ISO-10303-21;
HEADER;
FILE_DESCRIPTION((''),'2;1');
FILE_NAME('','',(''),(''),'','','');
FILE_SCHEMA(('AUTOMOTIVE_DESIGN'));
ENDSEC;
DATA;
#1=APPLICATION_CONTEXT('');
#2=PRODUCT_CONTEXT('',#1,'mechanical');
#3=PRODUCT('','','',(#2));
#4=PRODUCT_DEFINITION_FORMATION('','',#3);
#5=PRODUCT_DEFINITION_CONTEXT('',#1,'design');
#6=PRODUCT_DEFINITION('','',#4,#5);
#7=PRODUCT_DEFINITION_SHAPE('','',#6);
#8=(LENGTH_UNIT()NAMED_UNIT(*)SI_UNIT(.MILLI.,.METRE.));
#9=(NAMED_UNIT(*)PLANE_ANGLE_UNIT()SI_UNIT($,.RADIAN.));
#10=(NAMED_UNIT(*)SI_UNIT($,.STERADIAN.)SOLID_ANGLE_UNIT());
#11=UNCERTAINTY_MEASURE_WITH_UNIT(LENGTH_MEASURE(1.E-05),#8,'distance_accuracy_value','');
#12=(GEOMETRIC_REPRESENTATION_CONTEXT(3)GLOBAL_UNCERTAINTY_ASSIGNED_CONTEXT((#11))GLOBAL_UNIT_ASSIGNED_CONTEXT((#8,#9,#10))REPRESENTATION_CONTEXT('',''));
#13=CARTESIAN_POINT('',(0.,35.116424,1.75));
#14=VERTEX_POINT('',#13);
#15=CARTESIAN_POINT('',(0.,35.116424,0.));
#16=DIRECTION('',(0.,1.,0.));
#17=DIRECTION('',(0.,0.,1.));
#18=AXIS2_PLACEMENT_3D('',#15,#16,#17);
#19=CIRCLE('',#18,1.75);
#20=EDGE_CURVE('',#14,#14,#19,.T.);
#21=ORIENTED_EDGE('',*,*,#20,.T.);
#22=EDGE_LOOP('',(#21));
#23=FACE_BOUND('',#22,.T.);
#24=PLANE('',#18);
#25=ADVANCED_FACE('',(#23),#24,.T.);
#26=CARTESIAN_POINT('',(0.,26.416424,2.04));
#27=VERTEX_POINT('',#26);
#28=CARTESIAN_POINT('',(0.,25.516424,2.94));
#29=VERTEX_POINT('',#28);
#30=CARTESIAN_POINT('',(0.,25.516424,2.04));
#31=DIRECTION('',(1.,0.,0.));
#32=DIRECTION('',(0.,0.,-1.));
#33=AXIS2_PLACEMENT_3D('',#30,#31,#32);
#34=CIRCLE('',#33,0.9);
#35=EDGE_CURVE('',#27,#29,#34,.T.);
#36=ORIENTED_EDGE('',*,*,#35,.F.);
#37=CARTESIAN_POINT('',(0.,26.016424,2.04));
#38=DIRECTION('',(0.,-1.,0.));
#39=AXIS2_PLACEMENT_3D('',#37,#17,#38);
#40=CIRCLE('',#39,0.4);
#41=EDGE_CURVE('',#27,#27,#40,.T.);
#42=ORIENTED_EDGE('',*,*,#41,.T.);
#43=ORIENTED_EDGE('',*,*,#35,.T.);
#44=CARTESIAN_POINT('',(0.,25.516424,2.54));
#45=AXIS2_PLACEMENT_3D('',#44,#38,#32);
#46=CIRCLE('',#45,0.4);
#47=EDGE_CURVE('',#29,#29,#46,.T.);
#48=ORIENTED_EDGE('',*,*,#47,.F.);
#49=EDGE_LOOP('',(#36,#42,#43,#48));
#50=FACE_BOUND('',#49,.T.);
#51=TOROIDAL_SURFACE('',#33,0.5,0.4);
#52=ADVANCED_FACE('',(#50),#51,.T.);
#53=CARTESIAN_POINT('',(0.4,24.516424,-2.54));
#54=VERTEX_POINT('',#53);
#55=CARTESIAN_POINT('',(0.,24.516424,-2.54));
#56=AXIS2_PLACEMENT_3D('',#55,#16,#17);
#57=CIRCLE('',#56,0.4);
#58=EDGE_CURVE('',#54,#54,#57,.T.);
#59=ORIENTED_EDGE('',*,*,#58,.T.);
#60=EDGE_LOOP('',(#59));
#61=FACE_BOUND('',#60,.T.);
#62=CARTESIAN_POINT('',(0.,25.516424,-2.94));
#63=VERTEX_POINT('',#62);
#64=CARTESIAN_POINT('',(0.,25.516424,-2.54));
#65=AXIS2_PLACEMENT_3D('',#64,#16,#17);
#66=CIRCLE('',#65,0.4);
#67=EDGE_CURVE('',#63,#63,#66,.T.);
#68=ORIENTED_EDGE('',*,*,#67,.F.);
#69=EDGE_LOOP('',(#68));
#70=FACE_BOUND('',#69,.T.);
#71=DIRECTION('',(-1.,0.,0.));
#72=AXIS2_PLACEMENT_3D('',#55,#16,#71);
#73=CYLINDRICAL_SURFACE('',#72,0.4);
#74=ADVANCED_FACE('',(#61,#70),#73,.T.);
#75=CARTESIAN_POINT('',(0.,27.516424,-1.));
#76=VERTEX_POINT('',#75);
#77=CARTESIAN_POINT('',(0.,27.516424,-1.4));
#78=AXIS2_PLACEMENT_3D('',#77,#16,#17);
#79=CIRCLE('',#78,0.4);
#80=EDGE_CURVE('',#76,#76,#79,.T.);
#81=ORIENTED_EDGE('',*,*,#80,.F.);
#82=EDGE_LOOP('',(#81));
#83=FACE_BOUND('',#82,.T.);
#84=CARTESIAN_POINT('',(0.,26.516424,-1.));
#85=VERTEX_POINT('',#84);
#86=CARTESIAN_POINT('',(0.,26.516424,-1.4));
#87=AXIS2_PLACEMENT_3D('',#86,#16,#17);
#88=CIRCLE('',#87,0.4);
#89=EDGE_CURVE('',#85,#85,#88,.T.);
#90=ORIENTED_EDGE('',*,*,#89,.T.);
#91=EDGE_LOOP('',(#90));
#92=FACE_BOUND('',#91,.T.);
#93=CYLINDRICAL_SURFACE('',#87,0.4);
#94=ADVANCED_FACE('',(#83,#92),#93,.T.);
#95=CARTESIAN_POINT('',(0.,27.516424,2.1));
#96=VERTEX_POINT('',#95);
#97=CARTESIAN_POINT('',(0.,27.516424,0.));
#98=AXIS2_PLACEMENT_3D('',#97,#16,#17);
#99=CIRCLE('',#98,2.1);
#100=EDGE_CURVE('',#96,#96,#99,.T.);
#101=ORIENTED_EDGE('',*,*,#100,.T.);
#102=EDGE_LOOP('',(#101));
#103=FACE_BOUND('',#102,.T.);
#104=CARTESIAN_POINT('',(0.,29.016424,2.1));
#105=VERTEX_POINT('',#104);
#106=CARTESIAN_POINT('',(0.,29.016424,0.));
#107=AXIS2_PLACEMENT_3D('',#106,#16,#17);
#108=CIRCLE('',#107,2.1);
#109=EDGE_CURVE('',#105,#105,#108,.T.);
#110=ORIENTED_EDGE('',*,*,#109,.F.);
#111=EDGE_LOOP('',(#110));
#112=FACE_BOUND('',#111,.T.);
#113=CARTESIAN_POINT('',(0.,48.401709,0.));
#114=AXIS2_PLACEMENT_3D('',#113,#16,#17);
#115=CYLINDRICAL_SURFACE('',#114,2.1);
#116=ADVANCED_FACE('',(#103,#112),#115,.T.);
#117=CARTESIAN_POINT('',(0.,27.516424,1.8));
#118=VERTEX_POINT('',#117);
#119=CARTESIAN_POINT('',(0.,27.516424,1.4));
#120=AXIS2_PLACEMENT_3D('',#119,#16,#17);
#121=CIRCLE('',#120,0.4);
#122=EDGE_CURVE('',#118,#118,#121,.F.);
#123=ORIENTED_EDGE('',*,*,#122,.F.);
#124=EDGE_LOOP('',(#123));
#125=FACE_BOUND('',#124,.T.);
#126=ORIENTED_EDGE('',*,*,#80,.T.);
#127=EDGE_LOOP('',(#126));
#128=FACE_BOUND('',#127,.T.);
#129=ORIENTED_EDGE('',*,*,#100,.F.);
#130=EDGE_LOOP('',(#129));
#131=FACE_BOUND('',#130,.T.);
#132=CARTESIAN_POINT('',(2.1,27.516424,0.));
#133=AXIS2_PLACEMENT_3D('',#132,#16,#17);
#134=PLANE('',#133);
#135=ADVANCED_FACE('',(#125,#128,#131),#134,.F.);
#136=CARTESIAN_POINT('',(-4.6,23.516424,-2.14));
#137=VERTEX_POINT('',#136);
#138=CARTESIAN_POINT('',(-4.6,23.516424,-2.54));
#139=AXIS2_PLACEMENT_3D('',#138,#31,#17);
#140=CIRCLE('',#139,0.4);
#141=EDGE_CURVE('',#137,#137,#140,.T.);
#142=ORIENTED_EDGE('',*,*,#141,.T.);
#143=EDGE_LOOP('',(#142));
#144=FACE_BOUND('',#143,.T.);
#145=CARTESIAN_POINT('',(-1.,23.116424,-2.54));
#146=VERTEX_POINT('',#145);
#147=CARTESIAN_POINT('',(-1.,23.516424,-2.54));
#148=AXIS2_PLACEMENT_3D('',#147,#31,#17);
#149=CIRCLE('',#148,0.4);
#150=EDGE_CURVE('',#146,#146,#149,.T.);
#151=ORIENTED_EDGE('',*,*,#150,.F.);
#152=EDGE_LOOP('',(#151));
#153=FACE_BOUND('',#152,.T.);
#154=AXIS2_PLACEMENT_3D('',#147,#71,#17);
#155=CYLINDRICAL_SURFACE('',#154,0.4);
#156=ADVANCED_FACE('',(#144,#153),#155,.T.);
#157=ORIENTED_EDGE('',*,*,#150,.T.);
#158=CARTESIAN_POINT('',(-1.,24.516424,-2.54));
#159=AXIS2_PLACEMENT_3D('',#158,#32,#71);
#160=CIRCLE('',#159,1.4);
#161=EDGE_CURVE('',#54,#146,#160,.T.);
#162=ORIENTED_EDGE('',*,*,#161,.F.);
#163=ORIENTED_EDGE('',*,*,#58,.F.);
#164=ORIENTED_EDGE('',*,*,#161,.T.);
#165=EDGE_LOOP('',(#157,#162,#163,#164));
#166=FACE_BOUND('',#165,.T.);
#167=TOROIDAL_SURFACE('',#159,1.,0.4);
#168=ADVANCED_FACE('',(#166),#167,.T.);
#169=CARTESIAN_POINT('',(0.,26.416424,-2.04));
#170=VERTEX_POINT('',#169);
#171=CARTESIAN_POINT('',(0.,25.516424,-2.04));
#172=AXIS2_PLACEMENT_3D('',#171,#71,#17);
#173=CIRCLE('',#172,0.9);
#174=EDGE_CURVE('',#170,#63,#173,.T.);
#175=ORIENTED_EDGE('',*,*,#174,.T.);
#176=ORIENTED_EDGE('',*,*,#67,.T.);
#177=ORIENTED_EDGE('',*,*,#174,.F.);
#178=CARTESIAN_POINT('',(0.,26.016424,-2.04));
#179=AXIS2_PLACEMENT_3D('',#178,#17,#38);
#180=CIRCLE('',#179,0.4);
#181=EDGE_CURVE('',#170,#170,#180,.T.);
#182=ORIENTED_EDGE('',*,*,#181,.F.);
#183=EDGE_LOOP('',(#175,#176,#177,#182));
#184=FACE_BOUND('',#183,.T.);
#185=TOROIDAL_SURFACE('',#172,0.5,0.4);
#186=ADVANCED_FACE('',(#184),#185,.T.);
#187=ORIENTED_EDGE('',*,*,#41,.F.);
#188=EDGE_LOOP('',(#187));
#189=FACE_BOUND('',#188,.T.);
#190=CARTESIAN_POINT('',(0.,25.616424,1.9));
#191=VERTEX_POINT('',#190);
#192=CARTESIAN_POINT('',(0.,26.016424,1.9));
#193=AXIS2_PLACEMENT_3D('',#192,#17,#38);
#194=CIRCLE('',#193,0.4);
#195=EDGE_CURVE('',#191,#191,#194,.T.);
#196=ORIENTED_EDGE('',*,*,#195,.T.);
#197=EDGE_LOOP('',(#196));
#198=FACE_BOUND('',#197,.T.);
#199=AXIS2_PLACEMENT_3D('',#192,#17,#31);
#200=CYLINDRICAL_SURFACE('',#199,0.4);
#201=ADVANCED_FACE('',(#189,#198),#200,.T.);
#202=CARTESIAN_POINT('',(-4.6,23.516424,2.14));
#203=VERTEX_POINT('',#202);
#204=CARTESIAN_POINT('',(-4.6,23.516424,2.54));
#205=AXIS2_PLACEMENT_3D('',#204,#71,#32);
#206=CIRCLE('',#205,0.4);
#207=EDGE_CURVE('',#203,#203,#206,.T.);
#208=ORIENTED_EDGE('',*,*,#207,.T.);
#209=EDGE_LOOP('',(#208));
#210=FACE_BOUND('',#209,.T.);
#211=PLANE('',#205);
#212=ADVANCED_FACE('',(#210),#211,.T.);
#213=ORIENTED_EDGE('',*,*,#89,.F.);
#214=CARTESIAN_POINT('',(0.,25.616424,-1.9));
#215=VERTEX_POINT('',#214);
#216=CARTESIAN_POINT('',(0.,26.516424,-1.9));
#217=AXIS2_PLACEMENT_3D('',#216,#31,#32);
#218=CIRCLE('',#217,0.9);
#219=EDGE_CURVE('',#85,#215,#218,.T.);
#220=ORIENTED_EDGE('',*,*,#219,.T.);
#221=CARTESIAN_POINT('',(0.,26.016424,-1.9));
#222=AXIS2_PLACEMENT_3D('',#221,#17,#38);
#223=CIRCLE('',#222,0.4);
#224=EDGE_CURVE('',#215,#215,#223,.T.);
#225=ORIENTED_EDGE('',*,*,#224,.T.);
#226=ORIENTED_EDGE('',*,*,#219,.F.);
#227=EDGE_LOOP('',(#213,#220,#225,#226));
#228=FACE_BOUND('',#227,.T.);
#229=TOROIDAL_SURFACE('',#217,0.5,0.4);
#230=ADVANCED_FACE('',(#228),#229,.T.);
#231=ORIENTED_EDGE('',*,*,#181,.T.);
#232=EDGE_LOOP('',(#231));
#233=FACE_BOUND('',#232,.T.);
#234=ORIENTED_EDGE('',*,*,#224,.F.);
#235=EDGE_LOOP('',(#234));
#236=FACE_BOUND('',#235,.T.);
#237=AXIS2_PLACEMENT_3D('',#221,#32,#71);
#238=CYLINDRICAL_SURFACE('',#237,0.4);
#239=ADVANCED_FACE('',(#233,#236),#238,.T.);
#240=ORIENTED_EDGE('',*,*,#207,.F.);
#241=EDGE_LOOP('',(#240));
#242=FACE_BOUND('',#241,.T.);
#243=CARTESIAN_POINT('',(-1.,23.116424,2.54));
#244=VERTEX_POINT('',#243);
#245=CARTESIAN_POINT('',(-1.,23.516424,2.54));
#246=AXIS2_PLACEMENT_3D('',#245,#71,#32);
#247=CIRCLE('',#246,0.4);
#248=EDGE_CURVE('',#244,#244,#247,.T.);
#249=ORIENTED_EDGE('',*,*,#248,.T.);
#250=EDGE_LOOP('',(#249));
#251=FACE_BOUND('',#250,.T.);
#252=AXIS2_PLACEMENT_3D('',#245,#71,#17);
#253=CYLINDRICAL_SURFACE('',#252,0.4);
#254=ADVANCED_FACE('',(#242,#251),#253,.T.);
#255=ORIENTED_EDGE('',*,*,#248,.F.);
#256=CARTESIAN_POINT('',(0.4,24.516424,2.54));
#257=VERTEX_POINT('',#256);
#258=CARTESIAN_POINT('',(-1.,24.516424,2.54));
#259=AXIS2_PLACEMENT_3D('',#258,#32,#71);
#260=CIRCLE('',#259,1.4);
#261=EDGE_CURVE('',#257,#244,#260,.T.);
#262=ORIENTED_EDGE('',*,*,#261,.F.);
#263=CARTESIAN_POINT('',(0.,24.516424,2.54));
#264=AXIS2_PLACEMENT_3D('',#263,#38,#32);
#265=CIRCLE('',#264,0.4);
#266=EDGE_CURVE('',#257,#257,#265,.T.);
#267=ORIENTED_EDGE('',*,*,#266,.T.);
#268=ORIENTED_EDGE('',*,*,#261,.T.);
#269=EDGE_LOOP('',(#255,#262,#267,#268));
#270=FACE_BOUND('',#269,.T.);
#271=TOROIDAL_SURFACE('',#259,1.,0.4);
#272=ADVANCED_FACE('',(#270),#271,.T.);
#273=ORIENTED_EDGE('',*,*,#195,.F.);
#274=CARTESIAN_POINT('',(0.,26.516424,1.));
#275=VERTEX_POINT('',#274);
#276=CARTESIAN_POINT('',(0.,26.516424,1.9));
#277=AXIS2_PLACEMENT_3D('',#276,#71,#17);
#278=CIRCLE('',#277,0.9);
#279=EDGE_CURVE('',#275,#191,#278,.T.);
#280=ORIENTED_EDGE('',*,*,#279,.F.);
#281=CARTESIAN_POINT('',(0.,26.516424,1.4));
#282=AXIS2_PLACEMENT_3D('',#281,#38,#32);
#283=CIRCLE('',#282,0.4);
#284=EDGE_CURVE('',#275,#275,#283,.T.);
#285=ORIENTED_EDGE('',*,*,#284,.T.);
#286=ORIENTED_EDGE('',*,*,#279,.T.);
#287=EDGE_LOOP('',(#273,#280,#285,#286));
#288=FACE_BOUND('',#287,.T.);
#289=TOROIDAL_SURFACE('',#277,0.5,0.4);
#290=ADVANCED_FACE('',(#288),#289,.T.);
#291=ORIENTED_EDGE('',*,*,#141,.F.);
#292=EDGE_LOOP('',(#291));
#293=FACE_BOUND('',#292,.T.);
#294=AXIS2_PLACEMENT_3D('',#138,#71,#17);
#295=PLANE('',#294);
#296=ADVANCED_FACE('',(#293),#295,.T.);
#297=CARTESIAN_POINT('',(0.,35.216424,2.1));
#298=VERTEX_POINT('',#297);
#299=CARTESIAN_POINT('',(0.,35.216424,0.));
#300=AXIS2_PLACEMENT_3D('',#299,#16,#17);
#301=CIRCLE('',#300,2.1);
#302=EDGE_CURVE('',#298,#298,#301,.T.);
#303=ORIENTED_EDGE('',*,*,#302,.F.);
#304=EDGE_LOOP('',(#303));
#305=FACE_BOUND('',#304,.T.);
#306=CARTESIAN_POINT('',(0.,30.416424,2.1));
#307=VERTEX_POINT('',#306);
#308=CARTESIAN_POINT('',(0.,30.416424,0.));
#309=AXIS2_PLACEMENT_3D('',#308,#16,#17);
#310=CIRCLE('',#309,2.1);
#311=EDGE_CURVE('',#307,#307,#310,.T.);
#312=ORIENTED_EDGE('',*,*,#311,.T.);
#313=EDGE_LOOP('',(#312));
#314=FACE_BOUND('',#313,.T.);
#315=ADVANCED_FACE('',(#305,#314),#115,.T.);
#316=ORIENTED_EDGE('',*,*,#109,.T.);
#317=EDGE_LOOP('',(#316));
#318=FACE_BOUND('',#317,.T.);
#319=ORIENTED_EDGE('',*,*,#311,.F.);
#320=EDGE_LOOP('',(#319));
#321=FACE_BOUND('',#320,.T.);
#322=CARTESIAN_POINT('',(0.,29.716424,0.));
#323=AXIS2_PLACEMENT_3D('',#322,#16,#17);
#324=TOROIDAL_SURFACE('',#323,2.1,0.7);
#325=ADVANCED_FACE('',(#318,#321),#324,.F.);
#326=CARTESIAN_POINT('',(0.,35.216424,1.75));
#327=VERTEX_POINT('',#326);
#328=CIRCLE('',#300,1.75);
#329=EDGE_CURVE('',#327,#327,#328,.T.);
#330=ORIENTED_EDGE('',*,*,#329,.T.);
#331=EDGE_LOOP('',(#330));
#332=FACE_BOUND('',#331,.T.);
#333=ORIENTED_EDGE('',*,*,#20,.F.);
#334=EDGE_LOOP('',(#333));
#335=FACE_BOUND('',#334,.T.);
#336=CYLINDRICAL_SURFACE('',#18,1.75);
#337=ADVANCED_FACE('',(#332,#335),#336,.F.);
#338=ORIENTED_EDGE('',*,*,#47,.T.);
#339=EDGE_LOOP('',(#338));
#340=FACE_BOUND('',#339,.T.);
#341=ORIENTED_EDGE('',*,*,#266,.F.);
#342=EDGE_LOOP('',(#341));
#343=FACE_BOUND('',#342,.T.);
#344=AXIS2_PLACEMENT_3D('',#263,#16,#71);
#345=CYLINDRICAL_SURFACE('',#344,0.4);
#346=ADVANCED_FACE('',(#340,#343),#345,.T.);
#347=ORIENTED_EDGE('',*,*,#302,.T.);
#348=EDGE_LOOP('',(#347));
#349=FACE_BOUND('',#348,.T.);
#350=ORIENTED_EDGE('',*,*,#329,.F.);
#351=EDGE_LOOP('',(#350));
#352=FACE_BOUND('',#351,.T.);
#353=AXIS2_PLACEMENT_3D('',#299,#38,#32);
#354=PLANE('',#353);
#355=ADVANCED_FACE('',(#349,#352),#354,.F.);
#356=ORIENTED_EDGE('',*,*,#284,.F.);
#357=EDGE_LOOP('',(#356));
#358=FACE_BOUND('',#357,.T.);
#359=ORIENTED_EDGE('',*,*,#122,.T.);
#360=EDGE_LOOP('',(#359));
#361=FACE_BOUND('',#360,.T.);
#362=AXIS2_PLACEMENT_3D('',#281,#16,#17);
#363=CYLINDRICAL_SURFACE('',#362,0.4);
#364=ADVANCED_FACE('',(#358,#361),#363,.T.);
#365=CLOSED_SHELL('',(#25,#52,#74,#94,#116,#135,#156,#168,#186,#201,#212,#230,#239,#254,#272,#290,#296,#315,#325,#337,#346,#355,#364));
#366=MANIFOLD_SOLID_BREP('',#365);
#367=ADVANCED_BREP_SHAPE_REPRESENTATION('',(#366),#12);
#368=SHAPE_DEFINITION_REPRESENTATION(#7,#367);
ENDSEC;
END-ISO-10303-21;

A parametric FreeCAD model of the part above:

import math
import FreeCAD as App
import Part
import Sketcher

V = App.Vector
Q = App.Units.Quantity

doc = App.newDocument("Part")
params = doc.addObject("Spreadsheet::Sheet", "Params")
for row, (alias, value) in enumerate([
    ("sketch1_radius", "0.7 mm"),
    ("sketch1_width", "2.1 mm"),
    ("sketch1_height", "7.7 mm"),
    ("sketch1_height2", "1.5 mm"),
    ("revolution_angle", "360 deg"),
    ("sketch2_diameter", "3.5 mm"),
    ("pocket1_length", "0.1 mm"),
    ("sketch3_diameter", "0.8 mm"),
    ("sketch4_radius", "0.5 mm"),
    ("sketch4_width", "1 mm"),
    ("sketch4_height", "0.14 mm"),
    ("sketch5_diameter", "0.8 mm"),
    ("sketch6_radius", "1 mm"),
    ("sketch6_height", "1 mm"),
    ("sketch6_width", "3.6 mm"),
], start=1):
    params.set(f"A{row}", alias)
    params.set(f"B{row}", "=" + value)
    params.setAlias(f"B{row}", alias)

body = doc.addObject("PartDesign::Body", "Body")

# Sketch on XY plane
sketch1 = body.newObject("Sketcher::SketchObject", "Sketch")
sketch1.AttachmentSupport = (doc.getObject("XY_Plane"), [""])
sketch1.MapMode = "FlatFace"
sketch1.addGeometry([
    Part.LineSegment(V(2.1, 35.2, 0), V(0, 35.2, 0)),  # 0
    Part.LineSegment(V(0, 35.2, 0), V(0, 27.5, 0)),  # 1
    Part.LineSegment(V(0, 27.5, 0), V(2.1, 27.5, 0)),  # 2
    Part.LineSegment(V(2.1, 27.5, 0), V(2.1, 29, 0)),  # 3
    Part.ArcOfCircle(Part.Circle(V(2.1, 29.7, 0), V(0, 0, 1), 0.7), math.radians(90), math.radians(270)),  # 4
    Part.LineSegment(V(2.1, 30.4, 0), V(2.1, 35.2, 0)),  # 5
], False)
sketch1.addConstraint([
    Sketcher.Constraint("Coincident", 0, 2, 1, 1),
    Sketcher.Constraint("Coincident", 1, 2, 2, 1),
    Sketcher.Constraint("Coincident", 2, 2, 3, 1),
    Sketcher.Constraint("Coincident", 3, 2, 4, 2),
    Sketcher.Constraint("Coincident", 4, 1, 5, 1),
    Sketcher.Constraint("Coincident", 5, 2, 0, 1),
    Sketcher.Constraint("Horizontal", 0),
    Sketcher.Constraint("Vertical", 1),
    Sketcher.Constraint("Horizontal", 2),
    Sketcher.Constraint("Vertical", 3),
    Sketcher.Constraint("Vertical", 5),
    Sketcher.Constraint("PointOnObject", 0, 2, -2),
    Sketcher.Constraint("Vertical", 4, 3, 2, 2),
    Sketcher.Constraint("Vertical", 3, 2, 4, 1),
    Sketcher.Constraint("Radius", 4, Q("0.7 mm")),
    Sketcher.Constraint("DistanceX", 0, 2, 0, 1, Q("2.1 mm")),
    Sketcher.Constraint("DistanceY", 1, 2, 1, 1, Q("7.7 mm")),
    Sketcher.Constraint("DistanceY", 3, 1, 3, 2, Q("1.5 mm")),
    Sketcher.Constraint("DistanceY", -1, 1, 4, 3, Q("29.716424 mm")),
])
sketch1.setExpression("Constraints[14]", "Params.sketch1_radius")
sketch1.setExpression("Constraints[15]", "Params.sketch1_width")
sketch1.setExpression("Constraints[16]", "Params.sketch1_height")
sketch1.setExpression("Constraints[17]", "Params.sketch1_height2")
revolution = body.newObject("PartDesign::Revolution", "Revolution")
revolution.Profile = sketch1
revolution.ReferenceAxis = (sketch1, ["V_Axis"])
revolution.setExpression("Angle", "Params.revolution_angle")

# Sketch on XZ plane
sketch2 = body.newObject("Sketcher::SketchObject", "Sketch001")
sketch2.AttachmentSupport = (doc.getObject("XZ_Plane"), [""])
sketch2.MapMode = "FlatFace"
sketch2.AttachmentOffset = App.Placement(V(0, 0, -35.216424), App.Rotation())
sketch2.addGeometry(Part.Circle(V(0, 0, 0), V(0, 0, 1), 1.8), False)
sketch2.addConstraint([
    Sketcher.Constraint("Coincident", 0, 3, -1, 1),
    Sketcher.Constraint("Diameter", 0, Q("3.5 mm")),
])
sketch2.setExpression("Constraints[1]", "Params.sketch2_diameter")
pocket1 = body.newObject("PartDesign::Pocket", "Pocket")
pocket1.Profile = sketch2
pocket1.setExpression("Length", "Params.pocket1_length")
pocket1.Reversed = True

# Sketch on XZ plane
sketch3 = body.newObject("Sketcher::SketchObject", "Sketch002")
sketch3.AttachmentSupport = (doc.getObject("XZ_Plane"), [""])
sketch3.MapMode = "FlatFace"
sketch3.AttachmentOffset = App.Placement(V(0, 0, -27.516424), App.Rotation())
sketch3.addGeometry(Part.Circle(V(0, 1.4, 0), V(0, 0, 1), 0.4), False)
sketch3.addConstraint([
    Sketcher.Constraint("PointOnObject", 0, 3, -2),
    Sketcher.Constraint("Diameter", 0, Q("0.8 mm")),
    Sketcher.Constraint("DistanceY", -1, 1, 0, 3, Q("1.4 mm")),
])
sketch3.setExpression("Constraints[1]", "Params.sketch3_diameter")

# Sketch on YZ plane
sketch4 = body.newObject("Sketcher::SketchObject", "Sketch003")
sketch4.AttachmentSupport = (doc.getObject("YZ_Plane"), [""])
sketch4.MapMode = "FlatFace"
sketch4.addGeometry([
    Part.LineSegment(V(27.52, 1.4, 0), V(26.52, 1.4, 0)),
    Part.ArcOfCircle(Part.Circle(V(26.52, 1.9, 0), V(0, 0, 1), 0.5), math.radians(180), math.radians(270)),
    Part.LineSegment(V(26.02, 1.9, 0), V(26.02, 2.04, 0)),
    Part.ArcOfCircle(Part.Circle(V(25.52, 2.04, 0), V(0, 0, 1), 0.5), math.radians(0), math.radians(90)),
], False)
sketch4.addConstraint([
    Sketcher.Constraint("Tangent", 0, 2, 1, 2),
    Sketcher.Constraint("Tangent", 1, 1, 2, 1),
    Sketcher.Constraint("Tangent", 2, 2, 3, 1),
    Sketcher.Constraint("Horizontal", 0),
    Sketcher.Constraint("Vertical", 2),
    Sketcher.Constraint("Equal", 1, 3),
    Sketcher.Constraint("Radius", 1, Q("0.5 mm")),
    Sketcher.Constraint("DistanceX", 0, 2, 0, 1, Q("1 mm")),
    Sketcher.Constraint("DistanceX", 3, 2, 1, 3, Q("1 mm")),
    Sketcher.Constraint("DistanceY", 2, 1, 2, 2, Q("0.14 mm")),
    Sketcher.Constraint("DistanceY", -1, 1, 1, 3, Q("1.9 mm")),
    Sketcher.Constraint("DistanceX", -1, 1, 1, 3, Q("26.516424 mm")),
])
sketch4.setExpression("Constraints[6]", "Params.sketch4_radius")
sketch4.setExpression("Constraints[7]", "Params.sketch4_width")
sketch4.setExpression("Constraints[9]", "Params.sketch4_height")
doc.recompute()

additivepipe = body.newObject("PartDesign::AdditivePipe", "AdditivePipe")
additivepipe.Profile = sketch3
additivepipe.Spine = (sketch4, ["Edge1", "Edge2", "Edge3", "Edge4"])

# Sketch on XZ plane
sketch5 = body.newObject("Sketcher::SketchObject", "Sketch004")
sketch5.AttachmentSupport = (doc.getObject("XZ_Plane"), [""])
sketch5.MapMode = "FlatFace"
sketch5.AttachmentOffset = App.Placement(V(0, 0, -25.516424), App.Rotation())
sketch5.addGeometry(Part.Circle(V(0, 2.54, 0), V(0, 0, 1), 0.4), False)
sketch5.addConstraint([
    Sketcher.Constraint("PointOnObject", 0, 3, -2),
    Sketcher.Constraint("Diameter", 0, Q("0.8 mm")),
    Sketcher.Constraint("DistanceY", -1, 1, 0, 3, Q("2.54 mm")),
])
sketch5.setExpression("Constraints[1]", "Params.sketch5_diameter")

# Sketch on XY plane
sketch6 = body.newObject("Sketcher::SketchObject", "Sketch005")
sketch6.AttachmentSupport = (doc.getObject("XY_Plane"), [""])
sketch6.MapMode = "FlatFace"
sketch6.AttachmentOffset = App.Placement(V(0, 0, 2.54), App.Rotation())
sketch6.addGeometry([
    Part.LineSegment(V(0, 25.5, 0), V(0, 24.5, 0)),
    Part.ArcOfCircle(Part.Circle(V(-1, 24.5, 0), V(0, 0, 1), 1), math.radians(-90), math.radians(0)),
    Part.LineSegment(V(-1, 23.5, 0), V(-4.6, 23.5, 0)),
], False)
sketch6.addConstraint([
    Sketcher.Constraint("Tangent", 0, 2, 1, 2),
    Sketcher.Constraint("Tangent", 1, 1, 2, 1),
    Sketcher.Constraint("Vertical", 0),
    Sketcher.Constraint("Horizontal", 2),
    Sketcher.Constraint("PointOnObject", 0, 1, -2),
    Sketcher.Constraint("Radius", 1, Q("1 mm")),
    Sketcher.Constraint("DistanceY", 0, 2, 0, 1, Q("1 mm")),
    Sketcher.Constraint("DistanceX", 2, 2, 2, 1, Q("3.6 mm")),
    Sketcher.Constraint("DistanceY", -1, 1, 1, 3, Q("24.516424 mm")),
])
sketch6.setExpression("Constraints[5]", "Params.sketch6_radius")
sketch6.setExpression("Constraints[6]", "Params.sketch6_height")
sketch6.setExpression("Constraints[7]", "Params.sketch6_width")
doc.recompute()

additivepipe2 = body.newObject("PartDesign::AdditivePipe", "AdditivePipe001")
additivepipe2.Profile = sketch5
additivepipe2.Spine = (sketch6, ["Edge1", "Edge2", "Edge3"])
doc.recompute()

mirrored = body.newObject("PartDesign::Mirrored", "Mirrored")
mirrored.Originals = [additivepipe, additivepipe2]
mirrored.MirrorPlane = (doc.getObject("XY_Plane"), [""])
body.Tip = mirrored

doc.recompute()
